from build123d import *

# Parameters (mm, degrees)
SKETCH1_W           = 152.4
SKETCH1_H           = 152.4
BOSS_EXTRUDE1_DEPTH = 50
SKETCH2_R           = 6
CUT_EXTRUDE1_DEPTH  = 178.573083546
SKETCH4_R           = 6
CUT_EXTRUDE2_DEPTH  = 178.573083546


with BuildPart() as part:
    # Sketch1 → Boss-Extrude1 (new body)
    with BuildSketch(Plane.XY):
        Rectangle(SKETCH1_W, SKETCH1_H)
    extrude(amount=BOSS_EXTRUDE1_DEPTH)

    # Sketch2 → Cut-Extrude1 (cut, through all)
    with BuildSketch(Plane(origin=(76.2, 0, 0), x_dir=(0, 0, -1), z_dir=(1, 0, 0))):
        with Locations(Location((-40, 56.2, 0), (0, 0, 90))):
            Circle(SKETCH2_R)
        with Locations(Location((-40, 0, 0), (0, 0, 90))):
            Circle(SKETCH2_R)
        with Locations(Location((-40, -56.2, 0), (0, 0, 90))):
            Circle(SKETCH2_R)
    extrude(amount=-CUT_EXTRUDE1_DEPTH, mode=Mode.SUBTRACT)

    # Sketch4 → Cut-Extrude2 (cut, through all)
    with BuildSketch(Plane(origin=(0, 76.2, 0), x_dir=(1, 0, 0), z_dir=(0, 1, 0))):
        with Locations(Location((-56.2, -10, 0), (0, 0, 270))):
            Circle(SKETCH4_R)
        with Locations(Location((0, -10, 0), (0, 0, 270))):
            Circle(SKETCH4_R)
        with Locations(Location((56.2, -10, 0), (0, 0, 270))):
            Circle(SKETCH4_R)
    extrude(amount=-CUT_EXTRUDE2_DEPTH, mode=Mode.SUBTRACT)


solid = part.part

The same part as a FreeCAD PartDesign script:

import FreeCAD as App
import Part
import Sketcher

doc = App.newDocument("Part")
body = doc.addObject("PartDesign::Body", "Body")

sketch1 = body.newObject("Sketcher::SketchObject", "Sketch")
sketch1.AttachmentSupport = (doc.getObject("XY_Plane"), [""])
sketch1.MapMode = "FlatFace"
sketch1.addGeometry(Part.LineSegment(App.Vector(-76, 76, 0), App.Vector(-76, -76, 0)), False)
sketch1.addGeometry(Part.LineSegment(App.Vector(-76, -76, 0), App.Vector(76, -76, 0)), False)
sketch1.addGeometry(Part.LineSegment(App.Vector(76, -76, 0), App.Vector(76, 76, 0)), False)
sketch1.addGeometry(Part.LineSegment(App.Vector(76, 76, 0), App.Vector(-76, 76, 0)), False)
sketch1.addConstraint(Sketcher.Constraint("Coincident", 0, 2, 1, 1))
sketch1.addConstraint(Sketcher.Constraint("Coincident", 1, 2, 2, 1))
sketch1.addConstraint(Sketcher.Constraint("Coincident", 2, 2, 3, 1))
sketch1.addConstraint(Sketcher.Constraint("Coincident", 3, 2, 0, 1))
sketch1.addConstraint(Sketcher.Constraint("Vertical", 0))
sketch1.addConstraint(Sketcher.Constraint("Horizontal", 1))
sketch1.addConstraint(Sketcher.Constraint("Vertical", 2))
sketch1.addConstraint(Sketcher.Constraint("Horizontal", 3))
sketch1.addConstraint(Sketcher.Constraint("Symmetric", 0, 2, 2, 2, -1, 1))
sketch1.addConstraint(Sketcher.Constraint("Equal", 3, 0))
sketch1.addConstraint(Sketcher.Constraint("DistanceX", 1, 1, 1, 2, 152.4))
pad1 = body.newObject("PartDesign::Pad", "Pad")
pad1.Profile = sketch1
pad1.Length = 50

sketch2 = body.newObject("Sketcher::SketchObject", "Sketch001")
sketch2.AttachmentSupport = (doc.getObject("YZ_Plane"), [""])
sketch2.MapMode = "FlatFace"
sketch2.AttachmentOffset = App.Placement(App.Vector(0, 0, 76.2), App.Rotation())
sketch2.addGeometry(Part.Circle(App.Vector(56, 40, 0), App.Vector(0, 0, 1), 6), False)
sketch2.addGeometry(Part.Circle(App.Vector(0, 40, 0), App.Vector(0, 0, 1), 6), False)
sketch2.addGeometry(Part.Circle(App.Vector(-56, 40, 0), App.Vector(0, 0, 1), 6), False)
sketch2.addConstraint(Sketcher.Constraint("Equal", 0, 1))
sketch2.addConstraint(Sketcher.Constraint("Equal", 1, 2))
sketch2.addConstraint(Sketcher.Constraint("Symmetric", 0, 3, 2, 3, -2))
sketch2.addConstraint(Sketcher.Constraint("PointOnObject", 1, 3, -2))
sketch2.addConstraint(Sketcher.Constraint("Horizontal", 0, 3, 1, 3))
sketch2.addConstraint(Sketcher.Constraint("Diameter", 0, 12.0))
sketch2.addConstraint(Sketcher.Constraint("DistanceY", -1, 1, 0, 3, 40.0))
sketch2.addConstraint(Sketcher.Constraint("DistanceX", -1, 1, 0, 3, 56.2))
pocket1 = body.newObject("PartDesign::Pocket", "Pocket")
pocket1.Profile = sketch2
pocket1.Type = "ThroughAll"

sketch3 = body.newObject("Sketcher::SketchObject", "Sketch002")
sketch3.AttachmentSupport = (doc.getObject("XZ_Plane"), [""])
sketch3.MapMode = "FlatFace"
sketch3.AttachmentOffset = App.Placement(App.Vector(0, 0, -76.2), App.Rotation())
sketch3.addGeometry(Part.Circle(App.Vector(-56, 10, 0), App.Vector(0, 0, 1), 6), False)
sketch3.addGeometry(Part.Circle(App.Vector(0, 10, 0), App.Vector(0, 0, 1), 6), False)
sketch3.addGeometry(Part.Circle(App.Vector(56, 10, 0), App.Vector(0, 0, 1), 6), False)
sketch3.addConstraint(Sketcher.Constraint("Equal", 0, 1))
sketch3.addConstraint(Sketcher.Constraint("Equal", 1, 2))
sketch3.addConstraint(Sketcher.Constraint("Symmetric", 0, 3, 2, 3, -2))
sketch3.addConstraint(Sketcher.Constraint("PointOnObject", 1, 3, -2))
sketch3.addConstraint(Sketcher.Constraint("Horizontal", 0, 3, 1, 3))
sketch3.addConstraint(Sketcher.Constraint("Diameter", 0, 12.0))
sketch3.addConstraint(Sketcher.Constraint("DistanceY", -1, 1, 0, 3, 10.0))
sketch3.addConstraint(Sketcher.Constraint("DistanceX", 0, 3, -1, 1, 56.2))
pocket2 = body.newObject("PartDesign::Pocket", "Pocket001")
pocket2.Profile = sketch3
pocket2.Type = "ThroughAll"
pocket2.Reversed = True

doc.recompute()
